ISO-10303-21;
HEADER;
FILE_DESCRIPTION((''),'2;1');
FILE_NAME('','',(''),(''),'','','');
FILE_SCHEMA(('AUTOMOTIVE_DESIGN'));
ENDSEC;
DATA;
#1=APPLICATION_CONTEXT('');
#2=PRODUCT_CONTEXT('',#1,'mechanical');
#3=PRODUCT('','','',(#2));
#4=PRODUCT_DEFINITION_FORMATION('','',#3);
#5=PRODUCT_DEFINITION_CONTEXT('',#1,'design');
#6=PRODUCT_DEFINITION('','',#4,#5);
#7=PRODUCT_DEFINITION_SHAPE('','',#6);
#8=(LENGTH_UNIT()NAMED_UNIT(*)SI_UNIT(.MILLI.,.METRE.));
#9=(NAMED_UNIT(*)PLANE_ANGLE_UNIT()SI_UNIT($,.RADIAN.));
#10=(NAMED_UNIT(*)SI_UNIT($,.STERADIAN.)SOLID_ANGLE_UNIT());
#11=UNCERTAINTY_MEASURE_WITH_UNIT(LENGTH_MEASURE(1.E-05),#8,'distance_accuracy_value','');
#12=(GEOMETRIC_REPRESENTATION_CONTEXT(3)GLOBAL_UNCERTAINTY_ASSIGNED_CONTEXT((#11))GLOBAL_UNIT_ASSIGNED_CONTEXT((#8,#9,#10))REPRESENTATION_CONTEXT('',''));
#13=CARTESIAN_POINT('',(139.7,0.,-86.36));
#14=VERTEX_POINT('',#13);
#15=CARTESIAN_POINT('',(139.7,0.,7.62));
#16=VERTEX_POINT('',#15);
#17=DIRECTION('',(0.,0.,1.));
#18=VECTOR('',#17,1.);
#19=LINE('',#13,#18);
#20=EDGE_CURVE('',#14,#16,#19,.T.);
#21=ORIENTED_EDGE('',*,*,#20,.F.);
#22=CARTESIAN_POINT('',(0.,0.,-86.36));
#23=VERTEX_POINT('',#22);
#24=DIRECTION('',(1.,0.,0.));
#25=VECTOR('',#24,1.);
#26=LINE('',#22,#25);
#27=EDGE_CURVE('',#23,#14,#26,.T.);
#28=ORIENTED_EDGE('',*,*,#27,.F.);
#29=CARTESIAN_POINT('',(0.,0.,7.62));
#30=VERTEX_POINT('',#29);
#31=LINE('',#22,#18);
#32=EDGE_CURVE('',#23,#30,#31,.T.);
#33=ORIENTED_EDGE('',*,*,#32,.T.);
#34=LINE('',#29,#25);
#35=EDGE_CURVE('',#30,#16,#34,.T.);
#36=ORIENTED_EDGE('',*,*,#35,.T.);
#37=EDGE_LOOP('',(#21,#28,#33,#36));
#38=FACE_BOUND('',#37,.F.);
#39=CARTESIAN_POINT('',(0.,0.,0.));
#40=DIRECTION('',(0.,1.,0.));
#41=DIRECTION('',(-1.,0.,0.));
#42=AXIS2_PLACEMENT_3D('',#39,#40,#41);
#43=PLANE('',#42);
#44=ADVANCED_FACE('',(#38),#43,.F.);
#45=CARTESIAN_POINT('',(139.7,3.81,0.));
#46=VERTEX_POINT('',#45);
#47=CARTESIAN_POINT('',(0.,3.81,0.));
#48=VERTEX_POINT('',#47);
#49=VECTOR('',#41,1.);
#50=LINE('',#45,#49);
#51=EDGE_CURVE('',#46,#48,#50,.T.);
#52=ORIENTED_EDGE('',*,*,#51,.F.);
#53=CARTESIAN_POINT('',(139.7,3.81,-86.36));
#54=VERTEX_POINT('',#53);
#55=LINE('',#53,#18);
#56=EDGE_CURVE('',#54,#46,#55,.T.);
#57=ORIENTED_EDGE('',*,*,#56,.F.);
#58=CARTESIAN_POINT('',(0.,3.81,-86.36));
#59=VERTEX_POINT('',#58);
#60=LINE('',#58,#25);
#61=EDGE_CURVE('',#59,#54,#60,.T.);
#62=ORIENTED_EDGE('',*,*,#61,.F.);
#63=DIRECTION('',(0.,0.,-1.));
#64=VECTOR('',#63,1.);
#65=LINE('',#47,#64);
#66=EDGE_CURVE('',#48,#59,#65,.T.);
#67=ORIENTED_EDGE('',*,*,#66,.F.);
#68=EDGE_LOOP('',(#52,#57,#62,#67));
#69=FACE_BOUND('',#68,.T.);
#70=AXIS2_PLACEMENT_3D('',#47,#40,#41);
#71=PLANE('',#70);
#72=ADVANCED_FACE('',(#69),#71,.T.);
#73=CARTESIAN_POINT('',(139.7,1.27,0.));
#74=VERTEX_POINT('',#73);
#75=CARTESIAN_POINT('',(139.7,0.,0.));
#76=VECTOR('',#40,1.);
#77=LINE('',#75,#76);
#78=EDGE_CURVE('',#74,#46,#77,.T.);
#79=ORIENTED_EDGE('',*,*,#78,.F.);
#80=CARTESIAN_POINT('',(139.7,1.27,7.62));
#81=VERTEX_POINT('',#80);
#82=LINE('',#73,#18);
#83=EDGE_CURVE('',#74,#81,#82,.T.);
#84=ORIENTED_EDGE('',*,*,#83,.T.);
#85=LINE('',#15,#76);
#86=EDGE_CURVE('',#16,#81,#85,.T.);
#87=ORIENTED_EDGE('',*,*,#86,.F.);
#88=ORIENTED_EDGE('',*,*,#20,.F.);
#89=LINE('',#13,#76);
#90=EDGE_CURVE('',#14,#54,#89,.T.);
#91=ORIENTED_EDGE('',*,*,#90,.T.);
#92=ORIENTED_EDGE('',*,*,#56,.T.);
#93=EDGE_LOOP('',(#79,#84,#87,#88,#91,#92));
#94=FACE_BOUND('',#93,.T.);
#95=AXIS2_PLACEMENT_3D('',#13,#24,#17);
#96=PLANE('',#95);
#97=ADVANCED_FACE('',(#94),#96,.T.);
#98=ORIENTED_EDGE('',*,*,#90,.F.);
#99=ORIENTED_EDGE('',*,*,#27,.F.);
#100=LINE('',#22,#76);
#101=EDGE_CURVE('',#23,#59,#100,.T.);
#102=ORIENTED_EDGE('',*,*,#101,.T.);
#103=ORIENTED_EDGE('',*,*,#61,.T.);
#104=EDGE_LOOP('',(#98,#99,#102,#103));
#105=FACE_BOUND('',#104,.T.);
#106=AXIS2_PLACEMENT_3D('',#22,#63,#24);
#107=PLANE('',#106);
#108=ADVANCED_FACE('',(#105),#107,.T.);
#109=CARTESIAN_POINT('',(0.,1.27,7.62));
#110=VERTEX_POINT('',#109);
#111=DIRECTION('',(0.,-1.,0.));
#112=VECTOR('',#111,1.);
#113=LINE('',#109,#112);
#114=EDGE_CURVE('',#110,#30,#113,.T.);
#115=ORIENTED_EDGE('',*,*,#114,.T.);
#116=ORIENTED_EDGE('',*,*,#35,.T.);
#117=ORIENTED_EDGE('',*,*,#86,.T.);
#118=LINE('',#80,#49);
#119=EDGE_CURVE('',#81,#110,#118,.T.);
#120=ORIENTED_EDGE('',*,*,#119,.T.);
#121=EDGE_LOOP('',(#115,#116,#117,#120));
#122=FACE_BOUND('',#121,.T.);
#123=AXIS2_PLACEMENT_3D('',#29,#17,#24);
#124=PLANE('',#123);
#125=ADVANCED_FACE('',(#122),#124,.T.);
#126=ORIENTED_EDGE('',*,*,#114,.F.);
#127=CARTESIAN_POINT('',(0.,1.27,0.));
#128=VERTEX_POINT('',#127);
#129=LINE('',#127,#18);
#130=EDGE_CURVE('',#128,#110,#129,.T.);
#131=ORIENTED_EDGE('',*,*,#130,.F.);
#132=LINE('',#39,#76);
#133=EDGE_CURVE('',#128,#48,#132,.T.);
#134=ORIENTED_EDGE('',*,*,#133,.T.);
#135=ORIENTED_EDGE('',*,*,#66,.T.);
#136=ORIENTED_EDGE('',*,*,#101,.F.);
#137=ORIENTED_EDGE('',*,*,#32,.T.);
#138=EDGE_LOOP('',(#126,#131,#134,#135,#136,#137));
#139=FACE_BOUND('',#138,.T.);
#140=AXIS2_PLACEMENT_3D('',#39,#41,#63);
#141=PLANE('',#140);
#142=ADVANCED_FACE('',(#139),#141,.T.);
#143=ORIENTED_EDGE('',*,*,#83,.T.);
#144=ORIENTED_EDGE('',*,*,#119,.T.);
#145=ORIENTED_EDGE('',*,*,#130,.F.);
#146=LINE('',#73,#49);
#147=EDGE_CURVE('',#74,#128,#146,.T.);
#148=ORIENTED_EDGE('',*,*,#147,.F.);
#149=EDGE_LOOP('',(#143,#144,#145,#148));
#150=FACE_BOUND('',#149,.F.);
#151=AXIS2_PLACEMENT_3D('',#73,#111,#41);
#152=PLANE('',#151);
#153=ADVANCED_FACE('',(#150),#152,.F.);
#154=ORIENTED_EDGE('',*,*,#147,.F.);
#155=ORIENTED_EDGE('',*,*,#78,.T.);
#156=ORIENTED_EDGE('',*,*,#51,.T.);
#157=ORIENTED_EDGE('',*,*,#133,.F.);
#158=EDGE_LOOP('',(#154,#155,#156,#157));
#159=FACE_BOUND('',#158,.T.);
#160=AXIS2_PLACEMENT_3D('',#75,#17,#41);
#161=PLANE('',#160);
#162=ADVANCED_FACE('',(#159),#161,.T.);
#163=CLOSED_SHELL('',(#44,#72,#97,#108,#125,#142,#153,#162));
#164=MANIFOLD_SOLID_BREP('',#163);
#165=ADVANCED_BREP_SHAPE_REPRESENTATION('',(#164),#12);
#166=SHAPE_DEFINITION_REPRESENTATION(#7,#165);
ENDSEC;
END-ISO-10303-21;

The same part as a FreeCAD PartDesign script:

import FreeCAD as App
import Part
import Sketcher
from FreeCAD import Vector
Q = App.Units.Quantity

doc = App.newDocument("Part")
body = doc.addObject("PartDesign::Body", "Body")

sketch1 = body.newObject("Sketcher::SketchObject", "Sketch")
sketch1.AttachmentSupport = (doc.getObject("XZ_Plane"), [""])
sketch1.MapMode = "FlatFace"
sketch1.addGeometry(Part.LineSegment(Vector(0, -86, 0), Vector(0, 0, 0)), False)
sketch1.addGeometry(Part.LineSegment(Vector(0, 0, 0), Vector(140, 0, 0)), False)
sketch1.addGeometry(Part.LineSegment(Vector(140, 0, 0), Vector(140, -86, 0)), False)
sketch1.addGeometry(Part.LineSegment(Vector(140, -86, 0), Vector(0, -86, 0)), False)
sketch1.addConstraint(Sketcher.Constraint("Coincident", 0, 2, 1, 1))
sketch1.addConstraint(Sketcher.Constraint("Coincident", 1, 2, 2, 1))
sketch1.addConstraint(Sketcher.Constraint("Coincident", 2, 2, 3, 1))
sketch1.addConstraint(Sketcher.Constraint("Coincident", 3, 2, 0, 1))
sketch1.addConstraint(Sketcher.Constraint("Vertical", 0))
sketch1.addConstraint(Sketcher.Constraint("Horizontal", 1))
sketch1.addConstraint(Sketcher.Constraint("Vertical", 2))
sketch1.addConstraint(Sketcher.Constraint("Horizontal", 3))
sketch1.addConstraint(Sketcher.Constraint("Coincident", 0, 2, -1, 1))
sketch1.addConstraint(Sketcher.Constraint("DistanceX", 1, 1, 1, 2, Q("5.5 in")))
sketch1.addConstraint(Sketcher.Constraint("DistanceY", 0, 1, 0, 2, Q("3.4 in")))
pad1 = body.newObject("PartDesign::Pad", "Pad")
pad1.Profile = sketch1
pad1.Length = Q("0.15 in")
pad1.Reversed = True

sketch2 = body.newObject("Sketcher::SketchObject", "Sketch001")
sketch2.AttachmentSupport = (doc.getObject("XY_Plane"), [""])
sketch2.MapMode = "FlatFace"
sketch2.addGeometry(Part.LineSegment(Vector(0, 1.3, 0), Vector(0, 0, 0)), False)
sketch2.addGeometry(Part.LineSegment(Vector(0, 0, 0), Vector(139.7, 0, 0)), False)
sketch2.addGeometry(Part.LineSegment(Vector(139.7, 0, 0), Vector(139.7, 1.3, 0)), False)
sketch2.addGeometry(Part.LineSegment(Vector(139.7, 1.3, 0), Vector(0, 1.3, 0)), False)
sketch2.addConstraint(Sketcher.Constraint("Coincident", 0, 2, 1, 1))
sketch2.addConstraint(Sketcher.Constraint("Coincident", 1, 2, 2, 1))
sketch2.addConstraint(Sketcher.Constraint("Coincident", 2, 2, 3, 1))
sketch2.addConstraint(Sketcher.Constraint("Coincident", 3, 2, 0, 1))
sketch2.addConstraint(Sketcher.Constraint("Vertical", 0))
sketch2.addConstraint(Sketcher.Constraint("Horizontal", 1))
sketch2.addConstraint(Sketcher.Constraint("Vertical", 2))
sketch2.addConstraint(Sketcher.Constraint("Horizontal", 3))
sketch2.addConstraint(Sketcher.Constraint("Coincident", 0, 2, -1, 1))
sketch2.addConstraint(Sketcher.Constraint("DistanceY", 0, 2, 0, 1, Q("0.05 in")))
sketch2.addConstraint(Sketcher.Constraint("DistanceX", 1, 1, 1, 2, Q("5.5 in")))
pad2 = body.newObject("PartDesign::Pad", "Pad001")
pad2.Profile = sketch2
pad2.Length = Q("0.3 in")

doc.recompute()
